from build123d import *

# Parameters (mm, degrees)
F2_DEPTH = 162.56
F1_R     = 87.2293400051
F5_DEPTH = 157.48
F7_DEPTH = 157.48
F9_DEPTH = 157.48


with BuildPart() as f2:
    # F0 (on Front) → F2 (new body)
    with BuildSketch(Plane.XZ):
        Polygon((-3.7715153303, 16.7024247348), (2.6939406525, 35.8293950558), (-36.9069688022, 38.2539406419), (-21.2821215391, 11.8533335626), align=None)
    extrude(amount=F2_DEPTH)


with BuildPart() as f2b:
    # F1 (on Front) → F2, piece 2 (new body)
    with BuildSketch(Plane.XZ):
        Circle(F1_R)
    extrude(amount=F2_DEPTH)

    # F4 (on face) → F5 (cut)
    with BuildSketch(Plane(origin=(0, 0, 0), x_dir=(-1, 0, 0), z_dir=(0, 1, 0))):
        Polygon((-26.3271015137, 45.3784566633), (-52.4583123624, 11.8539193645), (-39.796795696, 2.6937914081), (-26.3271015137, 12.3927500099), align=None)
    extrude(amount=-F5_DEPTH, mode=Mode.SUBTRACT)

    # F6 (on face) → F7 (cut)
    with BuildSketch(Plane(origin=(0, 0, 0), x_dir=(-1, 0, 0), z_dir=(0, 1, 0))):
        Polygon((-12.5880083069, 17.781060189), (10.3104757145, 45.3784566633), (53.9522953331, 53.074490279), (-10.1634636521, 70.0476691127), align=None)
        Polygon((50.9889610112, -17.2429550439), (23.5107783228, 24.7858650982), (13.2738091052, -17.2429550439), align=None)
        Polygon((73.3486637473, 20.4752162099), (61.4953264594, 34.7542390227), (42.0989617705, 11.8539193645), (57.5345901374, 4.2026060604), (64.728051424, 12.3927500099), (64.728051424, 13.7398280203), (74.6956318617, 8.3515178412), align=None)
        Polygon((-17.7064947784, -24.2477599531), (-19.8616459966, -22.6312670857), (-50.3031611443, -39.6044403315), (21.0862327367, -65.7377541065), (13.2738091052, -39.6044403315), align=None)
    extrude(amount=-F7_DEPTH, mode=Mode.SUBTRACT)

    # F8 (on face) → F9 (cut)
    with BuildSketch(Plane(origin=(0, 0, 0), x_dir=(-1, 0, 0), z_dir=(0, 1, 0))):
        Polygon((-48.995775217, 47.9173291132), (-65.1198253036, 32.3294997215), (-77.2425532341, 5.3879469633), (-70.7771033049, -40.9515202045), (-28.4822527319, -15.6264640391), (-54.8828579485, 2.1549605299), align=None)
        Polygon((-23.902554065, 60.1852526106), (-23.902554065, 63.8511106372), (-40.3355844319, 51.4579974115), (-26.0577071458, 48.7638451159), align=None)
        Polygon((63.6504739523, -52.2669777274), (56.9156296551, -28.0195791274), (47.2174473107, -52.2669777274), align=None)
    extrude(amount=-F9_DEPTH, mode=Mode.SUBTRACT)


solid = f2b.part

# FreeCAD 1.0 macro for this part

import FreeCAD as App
import Part
import Sketcher
Q = App.Units.Quantity


def add_polygon(sketch, points):
    """Adds a closed chain of lines whose ends are joined by coincident constraints."""
    first, n = sketch.GeometryCount, len(points)
    for a, b in zip(points, points[1:] + points[:1]):
        sketch.addGeometry(Part.LineSegment(App.Vector(*a, 0), App.Vector(*b, 0)), False)
    for i in range(n):
        sketch.addConstraint(Sketcher.Constraint("Coincident", first + i, 2, first + (i + 1) % n, 1))

doc = App.newDocument("Part")
body = doc.addObject("PartDesign::Body", "Body")

# Sketch on XZ plane
sketch1 = body.newObject("Sketcher::SketchObject", "Sketch")
sketch1.AttachmentSupport = (doc.getObject("XZ_Plane"), [""])
sketch1.MapMode = "FlatFace"
add_polygon(sketch1, [(-4, 17), (3, 36), (-37, 38), (-21, 12)])  # lines 0-3
sketch1.addConstraint([
    Sketcher.Constraint("Distance", 1, 39.675061),
    Sketcher.Constraint("Distance", 2, 30.677808),
    Sketcher.Constraint("DistanceX", -1, 1, 0, 2, 2.693941),
    Sketcher.Constraint("DistanceX", 1, 2, -1, 1, 36.906969),
    Sketcher.Constraint("DistanceY", -1, 1, 1, 2, 38.253941),
    Sketcher.Constraint("DistanceX", 2, 2, -1, 1, 21.282122),
    Sketcher.Constraint("DistanceY", 2, 2, 3, 2, 4.849091),
    Sketcher.Constraint("Distance", 0, 20.190174),
])
pad1 = body.newObject("PartDesign::Pad", "Pad")
pad1.Profile = sketch1
pad1.Length = Q("6.4 in")
body2 = doc.addObject("PartDesign::Body", "Body001")

# Sketch on XZ plane
sketch2 = body2.newObject("Sketcher::SketchObject", "Sketch001")
sketch2.AttachmentSupport = (doc.getObject("XZ_Plane001"), [""])
sketch2.MapMode = "FlatFace"
sketch2.addGeometry(Part.Circle(App.Vector(0, 0, 0), App.Vector(0, 0, 1), 87), False)
sketch2.addConstraint([
    Sketcher.Constraint("Coincident", 0, 3, -1, 1),
    Sketcher.Constraint("Diameter", 0, 174.45868),
])
pad2 = body2.newObject("PartDesign::Pad", "Pad001")
pad2.Profile = sketch2
pad2.Length = Q("6.4 in")

# Sketch on XZ plane
sketch3 = body2.newObject("Sketcher::SketchObject", "Sketch002")
sketch3.AttachmentSupport = (doc.getObject("XZ_Plane001"), [""])
sketch3.MapMode = "FlatFace"
add_polygon(sketch3, [(26, 45), (52, 12), (40, 3), (26, 12)])  # lines 0-3
sketch3.addConstraint([
    Sketcher.Constraint("Vertical", 3),
    Sketcher.Constraint("DistanceX", -1, 1, 2, 2, Q("1.0365001 in")),
    Sketcher.Constraint("DistanceY", 3, 1, 3, 2, 32.985707),
    Sketcher.Constraint("DistanceY", -1, 1, 0, 2, 11.853919),
    Sketcher.Constraint("DistanceY", -1, 1, 1, 2, 2.693791),
    Sketcher.Constraint("DistanceY", -1, 1, 2, 2, 12.39275),
    Sketcher.Constraint("DistanceX", 2, 2, 0, 2, 26.131211),
    Sketcher.Constraint("Distance", 1, 15.627602),
])
pocket1 = body2.newObject("PartDesign::Pocket", "Pocket")
pocket1.Profile = sketch3
pocket1.Length = Q("6.2 in")
pocket1.Reversed = True

# Sketch on XZ plane
sketch4 = body2.newObject("Sketcher::SketchObject", "Sketch003")
sketch4.AttachmentSupport = (doc.getObject("XZ_Plane001"), [""])
sketch4.MapMode = "FlatFace"
add_polygon(sketch4, [(12.6, 17.8), (-10.3, 45.4), (-54, 53.1), (10.2, 70)])  # lines 0-3
add_polygon(sketch4, [(-51, -17.2), (-23.5, 24.8), (-13.3, -17.2)])  # lines 4-6
add_polygon(sketch4, [(-73.3, 20.5), (-61.5, 34.8), (-42.1, 11.9), (-57.5, 4.2), (-64.7, 12.4), (-64.7, 13.7), (-74.7, 8.4)])  # lines 7-13
add_polygon(sketch4, [(17.7, -24.2), (19.9, -22.6), (50.3, -39.6), (-21.1, -65.7), (-13.3, -39.6)])  # lines 14-18
sketch4.addConstraint([
    Sketcher.Constraint("Horizontal", 6),
    Sketcher.Constraint("Vertical", 11),
    Sketcher.Constraint("Parallel", 9, 18),
    Sketcher.Constraint("Horizontal", 15, 2, 17, 2),
    Sketcher.Constraint("Vertical", 5, 2, 17, 2),
    Sketcher.Constraint("DistanceX", 6, 2, 8, 2, Q("0.35 in")),
    Sketcher.Constraint("DistanceY", -1, 1, 12, 2, Q("0.3287999 in")),
    Sketcher.Constraint("DistanceX", 6, 2, 6, 1, 37.715152),
    Sketcher.Constraint("DistanceY", 11, 1, 11, 2, 1.347078),
    Sketcher.Constraint("DistanceY", 12, 2, 8, 2, 3.502402),
    Sketcher.Constraint("DistanceY", 12, 2, 13, 2, 12.123698),
    Sketcher.Constraint("DistanceY", 15, 2, 3, 2, 57.385501),
    Sketcher.Constraint("DistanceY", 16, 2, 5, 2, 48.494799),
    Sketcher.Constraint("Distance", 0, 35.860241),
    Sketcher.Constraint("Distance", 2, 66.32435),
    Sketcher.Constraint("Distance", 5, 43.257569),
    Sketcher.Constraint("Distance", 9, 17.22792),
    Sketcher.Constraint("Distance", 12, 11.330779),
    Sketcher.Constraint("Distance", 17, 27.276071),
    Sketcher.Constraint("Distance", 18, 34.577549),
    Sketcher.Constraint("DistanceY", -1, 1, 1, 2, 53.07449),
    Sketcher.Constraint("DistanceY", -1, 1, 2, 2, 70.047669),
    Sketcher.Constraint("DistanceX", -1, 1, 3, 2, 12.588008),
    Sketcher.Constraint("DistanceY", -1, 1, 3, 2, 17.78106),
    Sketcher.Constraint("DistanceX", 4, 2, -1, 1, 23.510778),
    Sketcher.Constraint("DistanceX", 5, 2, -1, 1, 13.273809),
    Sketcher.Constraint("DistanceY", -1, 1, 7, 2, 34.754239),
    Sketcher.Constraint("DistanceX", 9, 2, -1, 1, 57.53459),
    Sketcher.Constraint("DistanceX", 10, 2, -1, 1, 64.728051),
    Sketcher.Constraint("DistanceY", -1, 1, 10, 2, 12.39275),
    Sketcher.Constraint("DistanceX", -1, 1, 15, 2, 50.303161),
    Sketcher.Constraint("DistanceX", 1, 2, 0, 2, 43.64182),
    Sketcher.Constraint("DistanceY", 4, 2, 0, 2, 20.592592),
    Sketcher.Constraint("DistanceX", 4, 2, 2, 2, 33.674242),
    Sketcher.Constraint("DistanceX", 7, 2, 1, 2, 7.543031),
    Sketcher.Constraint("DistanceX", 12, 2, 13, 2, 1.346968),
    Sketcher.Constraint("DistanceX", 16, 2, 14, 2, 40.947879),
    Sketcher.Constraint("Distance", 14, 2.694017),
])
pocket2 = body2.newObject("PartDesign::Pocket", "Pocket001")
pocket2.Profile = sketch4
pocket2.Length = Q("6.2 in")
pocket2.Reversed = True

# Sketch on XZ plane
sketch5 = body2.newObject("Sketcher::SketchObject", "Sketch004")
sketch5.AttachmentSupport = (doc.getObject("XZ_Plane001"), [""])
sketch5.MapMode = "FlatFace"
add_polygon(sketch5, [(49, 47.9), (65.1, 32.3), (77.2, 5.4), (70.8, -41), (28.5, -15.6), (54.9, 2.2)])  # lines 0-5
add_polygon(sketch5, [(23.9, 60.2), (23.9, 63.9), (40.3, 51.5), (26.1, 48.8)])  # lines 6-9
add_polygon(sketch5, [(-63.7, -52.3), (-56.9, -28), (-47.2, -52.3)])  # lines 10-12
sketch5.addConstraint([
    Sketcher.Constraint("Vertical", 6),
    Sketcher.Constraint("Horizontal", 12),
    Sketcher.Constraint("Perpendicular", 8, 9),
    Sketcher.Constraint("DistanceX", 6, 2, 1, 2, Q("2.1 in")),
    Sketcher.Constraint("DistanceX", -1, 1, 2, 2, Q("2.7865001 in")),
    Sketcher.Constraint("DistanceY", 6, 1, 6, 2, 3.665858),
    Sketcher.Constraint("DistanceY", -1, 1, 0, 2, 32.3295),
    Sketcher.Constraint("DistanceX", 3, 2, 1, 2, 48.760301),
    Sketcher.Constraint("DistanceY", 11, 2, 10, 2, 24.247399),
    Sketcher.Constraint("DistanceX", 11, 2, 3, 2, 75.6997),
    Sketcher.Constraint("Distance", 0, 22.42689),
    Sketcher.Constraint("Distance", 1, 29.543321),
    Sketcher.Constraint("Distance", 3, 49.297189),
    Sketcher.Constraint("Distance", 8, 14.52984),
    Sketcher.Constraint("Distance", 9, 11.622961),
    Sketcher.Constraint("Distance", 11, 26.114959),
    Sketcher.Constraint("DistanceX", 12, 2, 12, 1, 16.433027),
    Sketcher.Constraint("DistanceY", 2, 2, -1, 1, 40.95152),
    Sketcher.Constraint("DistanceY", -1, 1, 4, 2, 2.154961),
    Sketcher.Constraint("DistanceY", -1, 1, 5, 2, 47.917329),
    Sketcher.Constraint("DistanceY", -1, 1, 6, 2, 63.851111),
    Sketcher.Constraint("DistanceX", 10, 2, -1, 1, 56.91563),
    Sketcher.Constraint("DistanceY", 10, 2, -1, 1, 28.019579),
    Sketcher.Constraint("DistanceX", 0, 2, 2, 2, 5.657278),
    Sketcher.Constraint("DistanceX", 7, 2, 5, 2, 8.660191),
    Sketcher.Constraint("DistanceX", 8, 2, 4, 2, 28.825151),
])
pocket3 = body2.newObject("PartDesign::Pocket", "Pocket002")
pocket3.Profile = sketch5
pocket3.Length = Q("6.2 in")
pocket3.Reversed = True
body.Visibility = False

doc.recompute()
